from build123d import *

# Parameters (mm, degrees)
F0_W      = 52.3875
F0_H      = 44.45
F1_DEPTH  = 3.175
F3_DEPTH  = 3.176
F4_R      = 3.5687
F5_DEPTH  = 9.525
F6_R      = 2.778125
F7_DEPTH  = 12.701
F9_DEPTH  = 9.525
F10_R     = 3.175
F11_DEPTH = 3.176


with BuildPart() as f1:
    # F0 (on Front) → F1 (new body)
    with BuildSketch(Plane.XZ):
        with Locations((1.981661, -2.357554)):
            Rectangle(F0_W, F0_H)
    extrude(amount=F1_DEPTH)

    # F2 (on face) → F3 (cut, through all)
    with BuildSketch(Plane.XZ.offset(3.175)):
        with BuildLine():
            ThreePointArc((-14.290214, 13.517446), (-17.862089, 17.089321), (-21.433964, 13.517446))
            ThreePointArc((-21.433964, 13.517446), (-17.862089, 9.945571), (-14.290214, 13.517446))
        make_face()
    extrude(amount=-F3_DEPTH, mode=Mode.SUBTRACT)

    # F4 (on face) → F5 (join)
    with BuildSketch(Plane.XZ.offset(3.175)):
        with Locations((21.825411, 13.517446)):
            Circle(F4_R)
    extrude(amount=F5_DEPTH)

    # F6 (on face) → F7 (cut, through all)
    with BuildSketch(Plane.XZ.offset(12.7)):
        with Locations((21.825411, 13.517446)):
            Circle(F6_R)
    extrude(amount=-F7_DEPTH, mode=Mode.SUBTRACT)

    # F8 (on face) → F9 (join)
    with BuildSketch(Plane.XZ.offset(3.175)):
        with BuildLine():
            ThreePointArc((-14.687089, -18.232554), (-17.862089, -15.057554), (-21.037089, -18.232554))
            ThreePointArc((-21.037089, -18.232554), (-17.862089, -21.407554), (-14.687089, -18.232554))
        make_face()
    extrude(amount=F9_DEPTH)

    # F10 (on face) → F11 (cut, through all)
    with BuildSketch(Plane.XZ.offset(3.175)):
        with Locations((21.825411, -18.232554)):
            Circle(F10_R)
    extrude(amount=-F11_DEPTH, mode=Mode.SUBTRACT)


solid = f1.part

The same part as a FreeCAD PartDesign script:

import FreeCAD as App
import Part
import Sketcher

V = App.Vector
Q = App.Units.Quantity

doc = App.newDocument("Part")
body = doc.addObject("PartDesign::Body", "Body")

# Sketch on XZ plane
sketch1 = body.newObject("Sketcher::SketchObject", "Sketch")
sketch1.AttachmentSupport = (doc.getObject("XZ_Plane"), [""])
sketch1.MapMode = "FlatFace"
sketch1.addGeometry(Part.LineSegment(V(-24.212089, 19.867446, 0), V(-24.212089, -24.582554, 0)), False)
sketch1.addGeometry(Part.LineSegment(V(-24.212089, -24.582554, 0), V(28.175411, -24.582554, 0)), False)
sketch1.addGeometry(Part.LineSegment(V(28.175411, -24.582554, 0), V(28.175411, 19.867446, 0)), False)
sketch1.addGeometry(Part.LineSegment(V(28.175411, 19.867446, 0), V(-24.212089, 19.867446, 0)), False)
sketch1.addConstraint(Sketcher.Constraint("Coincident", 0, 2, 1, 1))
sketch1.addConstraint(Sketcher.Constraint("Coincident", 1, 2, 2, 1))
sketch1.addConstraint(Sketcher.Constraint("Coincident", 2, 2, 3, 1))
sketch1.addConstraint(Sketcher.Constraint("Coincident", 3, 2, 0, 1))
sketch1.addConstraint(Sketcher.Constraint("Vertical", 0))
sketch1.addConstraint(Sketcher.Constraint("Horizontal", 1))
sketch1.addConstraint(Sketcher.Constraint("Vertical", 2))
sketch1.addConstraint(Sketcher.Constraint("Horizontal", 3))
sketch1.addConstraint(Sketcher.Constraint("DistanceY", 0, 2, 0, 1, Q("1.75 in")))
sketch1.addConstraint(Sketcher.Constraint("DistanceX", 1, 1, 1, 2, Q("2.0625 in")))
sketch1.addConstraint(Sketcher.Constraint("DistanceX", 0, 2, -1, 1, Q("24.212089 mm")))
sketch1.addConstraint(Sketcher.Constraint("DistanceY", 0, 2, -1, 1, Q("24.582554 mm")))
pad1 = body.newObject("PartDesign::Pad", "Pad")
pad1.Profile = sketch1
pad1.Length = Q("0.125 in")

# Sketch on XZ plane
sketch2 = body.newObject("Sketcher::SketchObject", "Sketch001")
sketch2.AttachmentSupport = (doc.getObject("XZ_Plane"), [""])
sketch2.MapMode = "FlatFace"
sketch2.AttachmentOffset = App.Placement(V(0, 0, 0.125 * 25.4), App.Rotation())
sketch2.addGeometry(Part.Circle(V(-17.862089, 13.517446, 0), V(0, 0, 1), 3.571875), False)
sketch2.addConstraint(Sketcher.Constraint("Diameter", 0, Q("0.28125 in")))
sketch2.addConstraint(Sketcher.Constraint("DistanceX", 0, 3, -1, 1, Q("17.862089 mm")))
sketch2.addConstraint(Sketcher.Constraint("DistanceY", -1, 1, 0, 3, Q("13.517446 mm")))
pocket1 = body.newObject("PartDesign::Pocket", "Pocket")
pocket1.Profile = sketch2
pocket1.Type = "ThroughAll"

# Sketch on XZ plane
sketch3 = body.newObject("Sketcher::SketchObject", "Sketch002")
sketch3.AttachmentSupport = (doc.getObject("XZ_Plane"), [""])
sketch3.MapMode = "FlatFace"
sketch3.AttachmentOffset = App.Placement(V(0, 0, 0.125 * 25.4), App.Rotation())
sketch3.addGeometry(Part.Circle(V(21.825411, 13.517446, 0), V(0, 0, 1), 3.5687), False)
sketch3.addConstraint(Sketcher.Constraint("Diameter", 0, Q("0.281 in")))
sketch3.addConstraint(Sketcher.Constraint("DistanceX", -1, 1, 0, 3, Q("21.825411 mm")))
sketch3.addConstraint(Sketcher.Constraint("DistanceY", -1, 1, 0, 3, Q("13.517446 mm")))
pad2 = body.newObject("PartDesign::Pad", "Pad001")
pad2.Profile = sketch3
pad2.Length = Q("0.375 in")

# Sketch on XZ plane
sketch4 = body.newObject("Sketcher::SketchObject", "Sketch003")
sketch4.AttachmentSupport = (doc.getObject("XZ_Plane"), [""])
sketch4.MapMode = "FlatFace"
sketch4.AttachmentOffset = App.Placement(V(0, 0, 0.5 * 25.4), App.Rotation())
sketch4.addGeometry(Part.Circle(V(21.825411, 13.517446, 0), V(0, 0, 1), 2.778125), False)
sketch4.addConstraint(Sketcher.Constraint("Diameter", 0, Q("0.21875 in")))
sketch4.addConstraint(Sketcher.Constraint("DistanceX", -1, 1, 0, 3, Q("21.825411 mm")))
sketch4.addConstraint(Sketcher.Constraint("DistanceY", -1, 1, 0, 3, Q("13.517446 mm")))
pocket2 = body.newObject("PartDesign::Pocket", "Pocket001")
pocket2.Profile = sketch4
pocket2.Type = "ThroughAll"

# Sketch on XZ plane
sketch5 = body.newObject("Sketcher::SketchObject", "Sketch004")
sketch5.AttachmentSupport = (doc.getObject("XZ_Plane"), [""])
sketch5.MapMode = "FlatFace"
sketch5.AttachmentOffset = App.Placement(V(0, 0, 0.125 * 25.4), App.Rotation())
sketch5.addGeometry(Part.Circle(V(-17.862089, -18.232554, 0), V(0, 0, 1), 3.175), False)
sketch5.addConstraint(Sketcher.Constraint("Diameter", 0, Q("0.25 in")))
sketch5.addConstraint(Sketcher.Constraint("DistanceX", 0, 3, -1, 1, Q("17.862089 mm")))
sketch5.addConstraint(Sketcher.Constraint("DistanceY", 0, 3, -1, 1, Q("18.232554 mm")))
pad3 = body.newObject("PartDesign::Pad", "Pad002")
pad3.Profile = sketch5
pad3.Length = Q("0.375 in")

# Sketch on XZ plane
sketch6 = body.newObject("Sketcher::SketchObject", "Sketch005")
sketch6.AttachmentSupport = (doc.getObject("XZ_Plane"), [""])
sketch6.MapMode = "FlatFace"
sketch6.AttachmentOffset = App.Placement(V(0, 0, 0.125 * 25.4), App.Rotation())
sketch6.addGeometry(Part.Circle(V(21.825411, -18.232554, 0), V(0, 0, 1), 3.175), False)
sketch6.addConstraint(Sketcher.Constraint("Diameter", 0, Q("0.25 in")))
sketch6.addConstraint(Sketcher.Constraint("DistanceX", -1, 1, 0, 3, Q("21.825411 mm")))
sketch6.addConstraint(Sketcher.Constraint("DistanceY", 0, 3, -1, 1, Q("18.232554 mm")))
pocket3 = body.newObject("PartDesign::Pocket", "Pocket002")
pocket3.Profile = sketch6
pocket3.Type = "ThroughAll"

doc.recompute()
